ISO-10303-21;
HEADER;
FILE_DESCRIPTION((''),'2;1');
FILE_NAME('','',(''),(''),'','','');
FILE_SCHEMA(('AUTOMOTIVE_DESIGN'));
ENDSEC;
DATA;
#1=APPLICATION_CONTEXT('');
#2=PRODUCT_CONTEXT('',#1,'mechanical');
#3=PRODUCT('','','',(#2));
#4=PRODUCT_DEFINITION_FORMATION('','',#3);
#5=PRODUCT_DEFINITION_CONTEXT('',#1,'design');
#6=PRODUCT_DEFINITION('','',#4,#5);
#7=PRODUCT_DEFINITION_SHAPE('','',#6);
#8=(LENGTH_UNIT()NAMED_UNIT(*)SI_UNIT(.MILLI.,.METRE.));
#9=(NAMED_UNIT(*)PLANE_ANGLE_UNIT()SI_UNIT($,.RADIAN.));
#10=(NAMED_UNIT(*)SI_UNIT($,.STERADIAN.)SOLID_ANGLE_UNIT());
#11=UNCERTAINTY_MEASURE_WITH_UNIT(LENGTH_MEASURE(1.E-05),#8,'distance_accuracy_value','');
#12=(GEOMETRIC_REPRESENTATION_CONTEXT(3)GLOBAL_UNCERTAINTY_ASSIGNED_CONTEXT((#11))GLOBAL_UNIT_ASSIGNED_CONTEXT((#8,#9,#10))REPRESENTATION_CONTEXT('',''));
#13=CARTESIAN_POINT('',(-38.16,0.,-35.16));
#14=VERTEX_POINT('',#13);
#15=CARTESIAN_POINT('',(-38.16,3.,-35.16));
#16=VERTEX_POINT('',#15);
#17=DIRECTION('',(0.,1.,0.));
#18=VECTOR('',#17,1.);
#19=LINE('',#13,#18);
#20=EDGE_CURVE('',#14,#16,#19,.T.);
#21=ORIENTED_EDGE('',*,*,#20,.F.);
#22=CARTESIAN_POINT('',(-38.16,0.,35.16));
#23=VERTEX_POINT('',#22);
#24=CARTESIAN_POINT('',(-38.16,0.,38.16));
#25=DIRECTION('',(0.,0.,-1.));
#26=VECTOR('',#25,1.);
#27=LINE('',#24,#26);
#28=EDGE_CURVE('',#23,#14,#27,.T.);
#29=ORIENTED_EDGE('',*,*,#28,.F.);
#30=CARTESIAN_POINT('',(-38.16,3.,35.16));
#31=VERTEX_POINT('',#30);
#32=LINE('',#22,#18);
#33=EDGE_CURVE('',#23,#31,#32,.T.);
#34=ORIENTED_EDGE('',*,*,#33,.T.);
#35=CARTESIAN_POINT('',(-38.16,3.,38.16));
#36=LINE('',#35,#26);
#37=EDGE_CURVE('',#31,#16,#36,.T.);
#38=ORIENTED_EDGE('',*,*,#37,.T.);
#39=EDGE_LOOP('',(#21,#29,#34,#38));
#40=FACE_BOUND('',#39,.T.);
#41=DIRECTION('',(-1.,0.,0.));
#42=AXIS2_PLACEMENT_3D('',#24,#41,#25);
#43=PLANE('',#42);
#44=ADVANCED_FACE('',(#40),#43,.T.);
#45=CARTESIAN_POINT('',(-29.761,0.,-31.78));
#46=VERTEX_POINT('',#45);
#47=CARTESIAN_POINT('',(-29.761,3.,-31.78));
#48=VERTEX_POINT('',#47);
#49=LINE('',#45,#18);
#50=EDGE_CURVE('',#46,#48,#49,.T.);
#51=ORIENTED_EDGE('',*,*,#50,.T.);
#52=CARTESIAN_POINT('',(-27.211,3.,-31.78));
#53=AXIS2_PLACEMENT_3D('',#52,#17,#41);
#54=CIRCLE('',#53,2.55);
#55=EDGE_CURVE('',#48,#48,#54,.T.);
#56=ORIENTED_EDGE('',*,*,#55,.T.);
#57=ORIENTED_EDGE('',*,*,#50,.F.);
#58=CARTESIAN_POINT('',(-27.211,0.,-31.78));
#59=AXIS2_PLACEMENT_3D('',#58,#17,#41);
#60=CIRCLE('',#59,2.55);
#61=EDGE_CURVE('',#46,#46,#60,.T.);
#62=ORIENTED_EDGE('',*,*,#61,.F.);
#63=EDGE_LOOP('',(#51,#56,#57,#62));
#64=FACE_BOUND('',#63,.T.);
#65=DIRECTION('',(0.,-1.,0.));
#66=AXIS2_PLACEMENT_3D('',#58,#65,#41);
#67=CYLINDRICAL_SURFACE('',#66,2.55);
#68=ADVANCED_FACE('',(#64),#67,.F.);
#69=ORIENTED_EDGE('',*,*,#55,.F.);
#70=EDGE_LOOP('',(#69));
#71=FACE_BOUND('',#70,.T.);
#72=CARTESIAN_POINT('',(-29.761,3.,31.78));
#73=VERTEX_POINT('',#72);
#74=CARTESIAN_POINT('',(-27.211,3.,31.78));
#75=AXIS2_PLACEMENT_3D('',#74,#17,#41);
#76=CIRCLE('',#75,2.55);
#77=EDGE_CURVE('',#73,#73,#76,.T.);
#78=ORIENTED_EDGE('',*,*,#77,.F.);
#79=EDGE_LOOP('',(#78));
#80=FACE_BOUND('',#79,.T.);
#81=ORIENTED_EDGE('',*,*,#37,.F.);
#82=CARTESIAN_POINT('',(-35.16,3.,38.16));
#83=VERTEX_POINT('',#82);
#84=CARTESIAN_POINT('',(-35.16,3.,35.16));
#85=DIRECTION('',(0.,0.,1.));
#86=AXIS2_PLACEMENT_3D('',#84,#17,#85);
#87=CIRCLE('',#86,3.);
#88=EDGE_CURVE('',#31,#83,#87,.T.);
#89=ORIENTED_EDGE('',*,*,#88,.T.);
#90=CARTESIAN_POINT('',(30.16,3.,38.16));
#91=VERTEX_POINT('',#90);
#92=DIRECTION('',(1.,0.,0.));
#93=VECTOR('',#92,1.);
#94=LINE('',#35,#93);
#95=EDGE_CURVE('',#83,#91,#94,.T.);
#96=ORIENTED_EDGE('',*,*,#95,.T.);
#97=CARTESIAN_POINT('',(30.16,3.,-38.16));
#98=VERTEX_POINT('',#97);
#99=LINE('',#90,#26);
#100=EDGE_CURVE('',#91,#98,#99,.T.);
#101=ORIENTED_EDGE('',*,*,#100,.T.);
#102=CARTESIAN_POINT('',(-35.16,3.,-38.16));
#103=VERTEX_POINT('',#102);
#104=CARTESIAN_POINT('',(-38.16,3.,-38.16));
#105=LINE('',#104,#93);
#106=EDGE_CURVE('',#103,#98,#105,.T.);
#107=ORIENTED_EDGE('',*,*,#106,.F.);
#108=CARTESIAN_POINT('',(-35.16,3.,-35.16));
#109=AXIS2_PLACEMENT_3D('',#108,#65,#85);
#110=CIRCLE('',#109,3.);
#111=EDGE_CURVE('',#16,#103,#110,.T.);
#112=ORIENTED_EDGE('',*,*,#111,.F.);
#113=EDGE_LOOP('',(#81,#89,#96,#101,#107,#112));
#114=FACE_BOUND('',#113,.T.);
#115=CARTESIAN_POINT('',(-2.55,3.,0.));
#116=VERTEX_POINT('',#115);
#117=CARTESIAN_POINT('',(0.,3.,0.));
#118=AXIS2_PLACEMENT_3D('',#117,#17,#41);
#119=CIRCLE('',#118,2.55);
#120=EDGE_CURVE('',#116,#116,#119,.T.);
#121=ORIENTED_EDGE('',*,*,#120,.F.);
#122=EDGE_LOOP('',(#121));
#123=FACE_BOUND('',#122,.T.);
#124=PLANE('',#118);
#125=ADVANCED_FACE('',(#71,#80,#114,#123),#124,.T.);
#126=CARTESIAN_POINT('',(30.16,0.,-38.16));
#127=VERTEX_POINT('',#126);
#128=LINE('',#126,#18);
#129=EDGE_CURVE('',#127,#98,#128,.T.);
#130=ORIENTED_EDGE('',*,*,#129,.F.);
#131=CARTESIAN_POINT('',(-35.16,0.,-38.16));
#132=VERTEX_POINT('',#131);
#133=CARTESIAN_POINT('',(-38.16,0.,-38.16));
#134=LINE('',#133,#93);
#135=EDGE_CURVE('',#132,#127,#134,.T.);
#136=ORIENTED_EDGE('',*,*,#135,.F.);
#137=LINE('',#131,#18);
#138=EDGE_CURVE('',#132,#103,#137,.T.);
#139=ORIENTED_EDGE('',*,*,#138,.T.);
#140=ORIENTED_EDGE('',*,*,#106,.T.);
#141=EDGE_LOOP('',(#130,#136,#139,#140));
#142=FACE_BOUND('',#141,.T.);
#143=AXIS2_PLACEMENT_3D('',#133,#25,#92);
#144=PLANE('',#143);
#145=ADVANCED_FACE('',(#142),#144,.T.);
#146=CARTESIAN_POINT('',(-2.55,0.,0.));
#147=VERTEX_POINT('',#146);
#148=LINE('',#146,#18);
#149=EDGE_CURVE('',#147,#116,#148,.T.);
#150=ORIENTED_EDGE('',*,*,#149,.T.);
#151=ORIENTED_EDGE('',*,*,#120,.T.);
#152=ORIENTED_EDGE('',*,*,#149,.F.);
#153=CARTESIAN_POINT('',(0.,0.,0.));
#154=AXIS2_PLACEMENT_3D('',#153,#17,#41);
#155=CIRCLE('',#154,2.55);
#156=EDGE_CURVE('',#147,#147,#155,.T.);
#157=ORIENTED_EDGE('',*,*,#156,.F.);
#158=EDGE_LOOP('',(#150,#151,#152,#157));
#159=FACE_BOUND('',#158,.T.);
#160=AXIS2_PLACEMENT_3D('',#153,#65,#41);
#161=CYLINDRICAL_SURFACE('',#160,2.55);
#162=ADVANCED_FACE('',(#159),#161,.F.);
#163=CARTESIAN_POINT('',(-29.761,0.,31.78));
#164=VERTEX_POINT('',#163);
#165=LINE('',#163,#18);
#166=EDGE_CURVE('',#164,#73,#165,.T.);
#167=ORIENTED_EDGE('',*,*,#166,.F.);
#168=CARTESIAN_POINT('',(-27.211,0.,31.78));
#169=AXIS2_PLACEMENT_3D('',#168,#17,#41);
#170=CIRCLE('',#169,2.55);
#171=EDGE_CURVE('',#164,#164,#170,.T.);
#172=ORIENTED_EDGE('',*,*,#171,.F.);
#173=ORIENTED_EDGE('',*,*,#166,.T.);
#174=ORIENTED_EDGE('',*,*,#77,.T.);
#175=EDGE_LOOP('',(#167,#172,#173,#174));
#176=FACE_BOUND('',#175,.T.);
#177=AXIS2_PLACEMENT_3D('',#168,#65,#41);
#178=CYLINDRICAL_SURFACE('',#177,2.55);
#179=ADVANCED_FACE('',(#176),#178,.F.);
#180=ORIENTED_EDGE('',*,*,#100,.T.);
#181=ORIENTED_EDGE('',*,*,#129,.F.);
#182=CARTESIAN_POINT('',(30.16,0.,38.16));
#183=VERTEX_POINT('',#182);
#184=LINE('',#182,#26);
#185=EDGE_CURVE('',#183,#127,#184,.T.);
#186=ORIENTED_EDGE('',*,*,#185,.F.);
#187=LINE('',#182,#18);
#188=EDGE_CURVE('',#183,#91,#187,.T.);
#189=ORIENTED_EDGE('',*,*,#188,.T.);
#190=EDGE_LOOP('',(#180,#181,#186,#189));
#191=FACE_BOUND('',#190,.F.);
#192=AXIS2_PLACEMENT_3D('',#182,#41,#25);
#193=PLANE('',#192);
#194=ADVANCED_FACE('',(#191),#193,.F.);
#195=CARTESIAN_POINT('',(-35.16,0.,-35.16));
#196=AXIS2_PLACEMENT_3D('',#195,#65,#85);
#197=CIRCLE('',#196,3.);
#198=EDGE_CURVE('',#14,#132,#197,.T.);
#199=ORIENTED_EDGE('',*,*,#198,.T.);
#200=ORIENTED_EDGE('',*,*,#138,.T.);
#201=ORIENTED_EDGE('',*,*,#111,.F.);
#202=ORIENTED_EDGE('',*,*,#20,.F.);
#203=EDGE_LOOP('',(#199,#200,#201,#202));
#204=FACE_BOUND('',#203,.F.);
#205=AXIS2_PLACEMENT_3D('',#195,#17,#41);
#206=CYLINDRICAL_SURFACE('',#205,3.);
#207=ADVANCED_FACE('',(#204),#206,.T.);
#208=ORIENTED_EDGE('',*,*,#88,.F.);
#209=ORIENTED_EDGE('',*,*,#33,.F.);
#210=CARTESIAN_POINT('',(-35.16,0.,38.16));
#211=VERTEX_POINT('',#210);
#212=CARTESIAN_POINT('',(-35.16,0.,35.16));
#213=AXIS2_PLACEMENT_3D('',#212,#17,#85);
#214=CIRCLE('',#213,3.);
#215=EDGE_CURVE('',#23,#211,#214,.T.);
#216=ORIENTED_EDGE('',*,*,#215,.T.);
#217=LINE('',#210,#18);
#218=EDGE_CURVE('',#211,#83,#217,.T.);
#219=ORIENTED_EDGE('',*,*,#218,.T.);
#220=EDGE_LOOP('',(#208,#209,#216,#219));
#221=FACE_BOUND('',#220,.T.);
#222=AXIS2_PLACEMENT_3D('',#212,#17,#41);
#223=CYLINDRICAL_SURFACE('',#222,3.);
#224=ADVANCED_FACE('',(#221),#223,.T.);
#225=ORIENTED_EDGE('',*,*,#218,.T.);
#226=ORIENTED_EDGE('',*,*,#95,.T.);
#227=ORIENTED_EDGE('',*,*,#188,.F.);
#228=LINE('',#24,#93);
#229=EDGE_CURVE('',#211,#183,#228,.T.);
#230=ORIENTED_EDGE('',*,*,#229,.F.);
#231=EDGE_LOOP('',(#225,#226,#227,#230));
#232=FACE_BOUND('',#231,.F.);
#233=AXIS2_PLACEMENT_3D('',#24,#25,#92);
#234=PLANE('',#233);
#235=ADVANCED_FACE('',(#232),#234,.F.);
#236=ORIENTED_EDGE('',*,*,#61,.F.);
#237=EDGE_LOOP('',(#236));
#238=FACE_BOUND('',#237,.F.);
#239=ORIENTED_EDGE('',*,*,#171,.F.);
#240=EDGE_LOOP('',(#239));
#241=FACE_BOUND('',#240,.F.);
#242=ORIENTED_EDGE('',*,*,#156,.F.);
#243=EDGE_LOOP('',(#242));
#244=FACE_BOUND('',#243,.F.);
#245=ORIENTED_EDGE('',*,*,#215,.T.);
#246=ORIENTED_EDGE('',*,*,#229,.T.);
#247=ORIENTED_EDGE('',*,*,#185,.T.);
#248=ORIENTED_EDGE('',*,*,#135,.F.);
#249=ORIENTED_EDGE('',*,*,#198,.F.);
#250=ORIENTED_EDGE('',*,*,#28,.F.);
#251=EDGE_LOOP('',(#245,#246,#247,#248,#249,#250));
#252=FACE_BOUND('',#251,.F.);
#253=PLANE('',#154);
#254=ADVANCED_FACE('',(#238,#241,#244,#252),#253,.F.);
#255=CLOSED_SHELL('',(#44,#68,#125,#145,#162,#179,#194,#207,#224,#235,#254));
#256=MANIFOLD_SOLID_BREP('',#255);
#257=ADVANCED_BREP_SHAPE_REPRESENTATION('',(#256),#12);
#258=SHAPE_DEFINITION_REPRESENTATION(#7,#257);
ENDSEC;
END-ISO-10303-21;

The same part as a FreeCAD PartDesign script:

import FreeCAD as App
import Part
import Sketcher
Q = App.Units.Quantity


def edges_at(feature, points):
    """Names of the edges that pass closest to the given points."""
    edges = feature.Shape.Edges
    near = lambda p: min(range(len(edges)), key=lambda i: edges[i].distToShape(Part.Vertex(*p))[0])
    return sorted({f"Edge{near(p) + 1}" for p in points})


def add_polygon(sketch, points):
    """Adds a closed chain of lines whose ends are joined by coincident constraints."""
    first, n = sketch.GeometryCount, len(points)
    for a, b in zip(points, points[1:] + points[:1]):
        sketch.addGeometry(Part.LineSegment(App.Vector(*a, 0), App.Vector(*b, 0)), False)
    for i in range(n):
        sketch.addConstraint(Sketcher.Constraint("Coincident", first + i, 2, first + (i + 1) % n, 1))

doc = App.newDocument("Part")
body = doc.addObject("PartDesign::Body", "Body")

# Sketch on XZ plane
sketch1 = body.newObject("Sketcher::SketchObject", "Sketch")
sketch1.AttachmentSupport = (doc.getObject("XZ_Plane"), [""])
sketch1.MapMode = "FlatFace"
add_polygon(sketch1, [(-38.2, -38.2), (-38.2, 38.2), (30.2, 38.2), (30.2, -38.2)])  # lines 0-3
sketch1.addGeometry(Part.Circle(App.Vector(-27.2, -31.8, 0), App.Vector(0, 0, 1), 2.5), False)  # 4
sketch1.addGeometry(Part.Circle(App.Vector(0, 0, 0), App.Vector(0, 0, 1), 2.5), False)  # 5
sketch1.addGeometry(Part.Circle(App.Vector(-27.2, 31.8, 0), App.Vector(0, 0, 1), 2.5), False)  # 6
sketch1.addConstraint(Sketcher.Constraint("Vertical", 0))
sketch1.addConstraint(Sketcher.Constraint("Horizontal", 1))
sketch1.addConstraint(Sketcher.Constraint("Vertical", 2))
sketch1.addConstraint(Sketcher.Constraint("Horizontal", 3))
sketch1.addConstraint(Sketcher.Constraint("Coincident", 5, 3, -1, 1))
sketch1.addConstraint(Sketcher.Constraint("Equal", 4, 5))
sketch1.addConstraint(Sketcher.Constraint("Equal", 5, 6))
sketch1.addConstraint(Sketcher.Constraint("Symmetric", 4, 3, 6, 3, -1))
sketch1.addConstraint(Sketcher.Constraint("Diameter", 4, Q("5.1 mm")))
sketch1.addConstraint(Sketcher.Constraint("DistanceY", 0, 1, 0, 2, Q("76.32 mm")))
sketch1.addConstraint(Sketcher.Constraint("DistanceX", 0, 2, -1, 1, Q("38.16 mm")))
sketch1.addConstraint(Sketcher.Constraint("DistanceY", -1, 1, 0, 2, Q("38.16 mm")))
sketch1.addConstraint(Sketcher.Constraint("DistanceY", 6, 3, 0, 2, Q("6.38 mm")))
sketch1.addConstraint(Sketcher.Constraint("DistanceX", 0, 2, 6, 3, Q("10.949 mm")))
sketch1.addConstraint(Sketcher.Constraint("DistanceX", 1, 1, 1, 2, Q("68.32 mm")))
pad1 = body.newObject("PartDesign::Pad", "Pad")
pad1.Profile = sketch1
pad1.Length = 3
pad1.Reversed = True
doc.recompute()

fillet = body.newObject("PartDesign::Fillet", "Fillet")
fillet.Base = (pad1, edges_at(pad1, [(-38.16, 1.5, 38.16), (-38.16, 1.5, -38.16)]))
fillet.Radius = 3

doc.recompute()
